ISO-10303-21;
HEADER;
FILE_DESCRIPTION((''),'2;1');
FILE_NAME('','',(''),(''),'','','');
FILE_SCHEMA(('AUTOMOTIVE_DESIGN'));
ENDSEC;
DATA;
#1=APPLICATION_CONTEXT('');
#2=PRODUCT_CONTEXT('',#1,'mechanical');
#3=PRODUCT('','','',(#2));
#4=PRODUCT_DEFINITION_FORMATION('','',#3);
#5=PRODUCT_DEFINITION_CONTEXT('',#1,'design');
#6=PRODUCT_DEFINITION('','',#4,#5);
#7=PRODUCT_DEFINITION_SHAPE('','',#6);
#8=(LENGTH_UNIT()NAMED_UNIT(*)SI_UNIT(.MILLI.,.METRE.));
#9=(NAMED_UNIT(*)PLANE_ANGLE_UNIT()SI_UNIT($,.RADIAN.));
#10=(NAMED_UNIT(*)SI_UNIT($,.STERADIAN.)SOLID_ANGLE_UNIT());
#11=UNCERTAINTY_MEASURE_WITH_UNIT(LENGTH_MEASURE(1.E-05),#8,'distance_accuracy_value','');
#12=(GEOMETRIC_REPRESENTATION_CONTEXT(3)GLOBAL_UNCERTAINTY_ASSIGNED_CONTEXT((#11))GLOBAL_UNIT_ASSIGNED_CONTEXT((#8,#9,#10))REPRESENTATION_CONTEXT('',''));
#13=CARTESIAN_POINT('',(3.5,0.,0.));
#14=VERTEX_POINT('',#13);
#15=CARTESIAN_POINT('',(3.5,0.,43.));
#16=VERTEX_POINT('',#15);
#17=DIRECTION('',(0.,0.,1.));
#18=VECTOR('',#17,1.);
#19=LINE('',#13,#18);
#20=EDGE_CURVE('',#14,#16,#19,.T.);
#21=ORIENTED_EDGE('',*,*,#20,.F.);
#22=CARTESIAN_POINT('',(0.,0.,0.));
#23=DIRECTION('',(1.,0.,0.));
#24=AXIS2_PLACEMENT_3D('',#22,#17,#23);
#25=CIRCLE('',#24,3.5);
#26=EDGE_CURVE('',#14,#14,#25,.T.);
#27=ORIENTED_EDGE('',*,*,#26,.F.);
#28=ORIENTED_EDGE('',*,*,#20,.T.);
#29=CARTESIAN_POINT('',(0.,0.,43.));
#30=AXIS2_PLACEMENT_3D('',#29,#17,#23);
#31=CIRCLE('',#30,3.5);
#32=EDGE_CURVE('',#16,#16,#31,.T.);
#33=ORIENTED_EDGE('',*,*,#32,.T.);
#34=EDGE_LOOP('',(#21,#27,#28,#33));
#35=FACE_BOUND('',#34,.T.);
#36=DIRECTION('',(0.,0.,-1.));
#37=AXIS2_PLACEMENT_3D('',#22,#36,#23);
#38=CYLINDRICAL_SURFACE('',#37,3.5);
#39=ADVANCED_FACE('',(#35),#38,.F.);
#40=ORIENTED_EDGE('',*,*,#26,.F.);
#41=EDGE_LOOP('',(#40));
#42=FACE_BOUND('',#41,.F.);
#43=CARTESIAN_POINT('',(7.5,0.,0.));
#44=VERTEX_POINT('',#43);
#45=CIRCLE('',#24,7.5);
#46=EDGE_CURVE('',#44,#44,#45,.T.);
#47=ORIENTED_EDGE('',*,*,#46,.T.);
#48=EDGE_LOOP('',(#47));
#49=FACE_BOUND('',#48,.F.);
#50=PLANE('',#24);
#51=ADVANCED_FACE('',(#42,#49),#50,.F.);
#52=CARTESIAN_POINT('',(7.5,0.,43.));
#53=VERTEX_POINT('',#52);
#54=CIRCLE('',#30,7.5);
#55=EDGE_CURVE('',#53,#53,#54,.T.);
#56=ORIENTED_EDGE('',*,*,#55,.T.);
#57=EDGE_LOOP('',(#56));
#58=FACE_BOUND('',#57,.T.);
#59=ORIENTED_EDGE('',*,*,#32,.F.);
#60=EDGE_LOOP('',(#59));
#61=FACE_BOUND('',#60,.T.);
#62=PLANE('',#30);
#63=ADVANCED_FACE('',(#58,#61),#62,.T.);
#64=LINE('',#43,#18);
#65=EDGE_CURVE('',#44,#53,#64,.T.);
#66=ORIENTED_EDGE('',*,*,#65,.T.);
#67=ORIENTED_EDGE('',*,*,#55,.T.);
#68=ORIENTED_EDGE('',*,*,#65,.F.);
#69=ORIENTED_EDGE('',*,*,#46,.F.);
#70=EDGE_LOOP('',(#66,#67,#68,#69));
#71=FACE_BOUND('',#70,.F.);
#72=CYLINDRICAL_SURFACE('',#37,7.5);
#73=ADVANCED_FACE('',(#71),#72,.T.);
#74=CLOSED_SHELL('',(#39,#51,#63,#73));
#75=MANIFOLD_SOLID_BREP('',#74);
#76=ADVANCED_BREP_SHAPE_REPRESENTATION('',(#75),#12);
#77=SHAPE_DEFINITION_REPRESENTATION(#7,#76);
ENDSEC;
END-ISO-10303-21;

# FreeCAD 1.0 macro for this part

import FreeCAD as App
import Part
import Sketcher

doc = App.newDocument("Part")
body = doc.addObject("PartDesign::Body", "Body")

sketch1 = doc.addObject("Sketcher::SketchObject", "Sketch")
body.addObject(sketch1)
sketch1.AttachmentSupport = (doc.XY_Plane, [""])
sketch1.MapMode = "FlatFace"
sketch1.addGeometry([
    Part.Circle(App.Vector(0, 0, 0), App.Vector(0, 0, 1), 7.5),
    Part.Circle(App.Vector(0, 0, 0), App.Vector(0, 0, 1), 3.5),
], False)
sketch1.addConstraint([
    Sketcher.Constraint("Coincident", 0, 3, -1, 1),
    Sketcher.Constraint("Coincident", 1, 3, -1, 1),
    Sketcher.Constraint("Diameter", 0, 15.0),
    Sketcher.Constraint("Diameter", 1, 7.0),
])
pad1 = doc.addObject("PartDesign::Pad", "Pad")
body.addObject(pad1)
pad1.Profile = sketch1
pad1.Length = 43

doc.recompute()
